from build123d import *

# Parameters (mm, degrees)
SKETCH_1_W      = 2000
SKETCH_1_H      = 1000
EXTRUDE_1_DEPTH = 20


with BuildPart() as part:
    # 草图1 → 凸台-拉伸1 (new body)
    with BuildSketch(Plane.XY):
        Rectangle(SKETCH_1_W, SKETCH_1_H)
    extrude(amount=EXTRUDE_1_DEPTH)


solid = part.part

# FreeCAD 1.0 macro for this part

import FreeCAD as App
import Part
import Sketcher
from FreeCAD import Vector
Q = App.Units.Quantity


def add_polygon(sketch, points):
    """Adds a closed chain of lines whose ends are joined by coincident constraints."""
    first, n = sketch.GeometryCount, len(points)
    for a, b in zip(points, points[1:] + points[:1]):
        sketch.addGeometry(Part.LineSegment(App.Vector(*a, 0), App.Vector(*b, 0)), False)
    for i in range(n):
        sketch.addConstraint(Sketcher.Constraint("Coincident", first + i, 2, first + (i + 1) % n, 1))

doc = App.newDocument("Part")
params = doc.addObject("Spreadsheet::Sheet", "Params")
for row, (alias, value) in enumerate([
    ("sketch1_width", "2000 mm"),
    ("sketch1_height", "1000 mm"),
    ("pad1_length", "20 mm"),
], start=1):
    params.set(f"A{row}", alias)
    params.set(f"B{row}", "=" + value)
    params.setAlias(f"B{row}", alias)

body = doc.addObject("PartDesign::Body", "Body")

# Sketch on XY plane
sketch1 = doc.addObject("Sketcher::SketchObject", "Sketch")
body.addObject(sketch1)
sketch1.AttachmentSupport = (doc.XY_Plane, [""])
sketch1.MapMode = "FlatFace"
add_polygon(sketch1, [(-1000, 500), (-1000, -500), (1000, -500), (1000, 500)])  # lines 0-3
sketch1.addConstraint([
    Sketcher.Constraint("Vertical", 0),
    Sketcher.Constraint("Horizontal", 1),
    Sketcher.Constraint("Vertical", 2),
    Sketcher.Constraint("Horizontal", 3),
    Sketcher.Constraint("Symmetric", 0, 2, 2, 2, -1, 1),
    Sketcher.Constraint("DistanceX", 1, 1, 1, 2, Q("2000 mm")),
    Sketcher.Constraint("DistanceY", 0, 2, 0, 1, Q("1000 mm")),
])
sketch1.setExpression("Constraints[9]", "Params.sketch1_width")
sketch1.setExpression("Constraints[10]", "Params.sketch1_height")
pad1 = doc.addObject("PartDesign::Pad", "Pad")
body.addObject(pad1)
pad1.Profile = sketch1
pad1.setExpression("Length", "Params.pad1_length")

doc.recompute()
